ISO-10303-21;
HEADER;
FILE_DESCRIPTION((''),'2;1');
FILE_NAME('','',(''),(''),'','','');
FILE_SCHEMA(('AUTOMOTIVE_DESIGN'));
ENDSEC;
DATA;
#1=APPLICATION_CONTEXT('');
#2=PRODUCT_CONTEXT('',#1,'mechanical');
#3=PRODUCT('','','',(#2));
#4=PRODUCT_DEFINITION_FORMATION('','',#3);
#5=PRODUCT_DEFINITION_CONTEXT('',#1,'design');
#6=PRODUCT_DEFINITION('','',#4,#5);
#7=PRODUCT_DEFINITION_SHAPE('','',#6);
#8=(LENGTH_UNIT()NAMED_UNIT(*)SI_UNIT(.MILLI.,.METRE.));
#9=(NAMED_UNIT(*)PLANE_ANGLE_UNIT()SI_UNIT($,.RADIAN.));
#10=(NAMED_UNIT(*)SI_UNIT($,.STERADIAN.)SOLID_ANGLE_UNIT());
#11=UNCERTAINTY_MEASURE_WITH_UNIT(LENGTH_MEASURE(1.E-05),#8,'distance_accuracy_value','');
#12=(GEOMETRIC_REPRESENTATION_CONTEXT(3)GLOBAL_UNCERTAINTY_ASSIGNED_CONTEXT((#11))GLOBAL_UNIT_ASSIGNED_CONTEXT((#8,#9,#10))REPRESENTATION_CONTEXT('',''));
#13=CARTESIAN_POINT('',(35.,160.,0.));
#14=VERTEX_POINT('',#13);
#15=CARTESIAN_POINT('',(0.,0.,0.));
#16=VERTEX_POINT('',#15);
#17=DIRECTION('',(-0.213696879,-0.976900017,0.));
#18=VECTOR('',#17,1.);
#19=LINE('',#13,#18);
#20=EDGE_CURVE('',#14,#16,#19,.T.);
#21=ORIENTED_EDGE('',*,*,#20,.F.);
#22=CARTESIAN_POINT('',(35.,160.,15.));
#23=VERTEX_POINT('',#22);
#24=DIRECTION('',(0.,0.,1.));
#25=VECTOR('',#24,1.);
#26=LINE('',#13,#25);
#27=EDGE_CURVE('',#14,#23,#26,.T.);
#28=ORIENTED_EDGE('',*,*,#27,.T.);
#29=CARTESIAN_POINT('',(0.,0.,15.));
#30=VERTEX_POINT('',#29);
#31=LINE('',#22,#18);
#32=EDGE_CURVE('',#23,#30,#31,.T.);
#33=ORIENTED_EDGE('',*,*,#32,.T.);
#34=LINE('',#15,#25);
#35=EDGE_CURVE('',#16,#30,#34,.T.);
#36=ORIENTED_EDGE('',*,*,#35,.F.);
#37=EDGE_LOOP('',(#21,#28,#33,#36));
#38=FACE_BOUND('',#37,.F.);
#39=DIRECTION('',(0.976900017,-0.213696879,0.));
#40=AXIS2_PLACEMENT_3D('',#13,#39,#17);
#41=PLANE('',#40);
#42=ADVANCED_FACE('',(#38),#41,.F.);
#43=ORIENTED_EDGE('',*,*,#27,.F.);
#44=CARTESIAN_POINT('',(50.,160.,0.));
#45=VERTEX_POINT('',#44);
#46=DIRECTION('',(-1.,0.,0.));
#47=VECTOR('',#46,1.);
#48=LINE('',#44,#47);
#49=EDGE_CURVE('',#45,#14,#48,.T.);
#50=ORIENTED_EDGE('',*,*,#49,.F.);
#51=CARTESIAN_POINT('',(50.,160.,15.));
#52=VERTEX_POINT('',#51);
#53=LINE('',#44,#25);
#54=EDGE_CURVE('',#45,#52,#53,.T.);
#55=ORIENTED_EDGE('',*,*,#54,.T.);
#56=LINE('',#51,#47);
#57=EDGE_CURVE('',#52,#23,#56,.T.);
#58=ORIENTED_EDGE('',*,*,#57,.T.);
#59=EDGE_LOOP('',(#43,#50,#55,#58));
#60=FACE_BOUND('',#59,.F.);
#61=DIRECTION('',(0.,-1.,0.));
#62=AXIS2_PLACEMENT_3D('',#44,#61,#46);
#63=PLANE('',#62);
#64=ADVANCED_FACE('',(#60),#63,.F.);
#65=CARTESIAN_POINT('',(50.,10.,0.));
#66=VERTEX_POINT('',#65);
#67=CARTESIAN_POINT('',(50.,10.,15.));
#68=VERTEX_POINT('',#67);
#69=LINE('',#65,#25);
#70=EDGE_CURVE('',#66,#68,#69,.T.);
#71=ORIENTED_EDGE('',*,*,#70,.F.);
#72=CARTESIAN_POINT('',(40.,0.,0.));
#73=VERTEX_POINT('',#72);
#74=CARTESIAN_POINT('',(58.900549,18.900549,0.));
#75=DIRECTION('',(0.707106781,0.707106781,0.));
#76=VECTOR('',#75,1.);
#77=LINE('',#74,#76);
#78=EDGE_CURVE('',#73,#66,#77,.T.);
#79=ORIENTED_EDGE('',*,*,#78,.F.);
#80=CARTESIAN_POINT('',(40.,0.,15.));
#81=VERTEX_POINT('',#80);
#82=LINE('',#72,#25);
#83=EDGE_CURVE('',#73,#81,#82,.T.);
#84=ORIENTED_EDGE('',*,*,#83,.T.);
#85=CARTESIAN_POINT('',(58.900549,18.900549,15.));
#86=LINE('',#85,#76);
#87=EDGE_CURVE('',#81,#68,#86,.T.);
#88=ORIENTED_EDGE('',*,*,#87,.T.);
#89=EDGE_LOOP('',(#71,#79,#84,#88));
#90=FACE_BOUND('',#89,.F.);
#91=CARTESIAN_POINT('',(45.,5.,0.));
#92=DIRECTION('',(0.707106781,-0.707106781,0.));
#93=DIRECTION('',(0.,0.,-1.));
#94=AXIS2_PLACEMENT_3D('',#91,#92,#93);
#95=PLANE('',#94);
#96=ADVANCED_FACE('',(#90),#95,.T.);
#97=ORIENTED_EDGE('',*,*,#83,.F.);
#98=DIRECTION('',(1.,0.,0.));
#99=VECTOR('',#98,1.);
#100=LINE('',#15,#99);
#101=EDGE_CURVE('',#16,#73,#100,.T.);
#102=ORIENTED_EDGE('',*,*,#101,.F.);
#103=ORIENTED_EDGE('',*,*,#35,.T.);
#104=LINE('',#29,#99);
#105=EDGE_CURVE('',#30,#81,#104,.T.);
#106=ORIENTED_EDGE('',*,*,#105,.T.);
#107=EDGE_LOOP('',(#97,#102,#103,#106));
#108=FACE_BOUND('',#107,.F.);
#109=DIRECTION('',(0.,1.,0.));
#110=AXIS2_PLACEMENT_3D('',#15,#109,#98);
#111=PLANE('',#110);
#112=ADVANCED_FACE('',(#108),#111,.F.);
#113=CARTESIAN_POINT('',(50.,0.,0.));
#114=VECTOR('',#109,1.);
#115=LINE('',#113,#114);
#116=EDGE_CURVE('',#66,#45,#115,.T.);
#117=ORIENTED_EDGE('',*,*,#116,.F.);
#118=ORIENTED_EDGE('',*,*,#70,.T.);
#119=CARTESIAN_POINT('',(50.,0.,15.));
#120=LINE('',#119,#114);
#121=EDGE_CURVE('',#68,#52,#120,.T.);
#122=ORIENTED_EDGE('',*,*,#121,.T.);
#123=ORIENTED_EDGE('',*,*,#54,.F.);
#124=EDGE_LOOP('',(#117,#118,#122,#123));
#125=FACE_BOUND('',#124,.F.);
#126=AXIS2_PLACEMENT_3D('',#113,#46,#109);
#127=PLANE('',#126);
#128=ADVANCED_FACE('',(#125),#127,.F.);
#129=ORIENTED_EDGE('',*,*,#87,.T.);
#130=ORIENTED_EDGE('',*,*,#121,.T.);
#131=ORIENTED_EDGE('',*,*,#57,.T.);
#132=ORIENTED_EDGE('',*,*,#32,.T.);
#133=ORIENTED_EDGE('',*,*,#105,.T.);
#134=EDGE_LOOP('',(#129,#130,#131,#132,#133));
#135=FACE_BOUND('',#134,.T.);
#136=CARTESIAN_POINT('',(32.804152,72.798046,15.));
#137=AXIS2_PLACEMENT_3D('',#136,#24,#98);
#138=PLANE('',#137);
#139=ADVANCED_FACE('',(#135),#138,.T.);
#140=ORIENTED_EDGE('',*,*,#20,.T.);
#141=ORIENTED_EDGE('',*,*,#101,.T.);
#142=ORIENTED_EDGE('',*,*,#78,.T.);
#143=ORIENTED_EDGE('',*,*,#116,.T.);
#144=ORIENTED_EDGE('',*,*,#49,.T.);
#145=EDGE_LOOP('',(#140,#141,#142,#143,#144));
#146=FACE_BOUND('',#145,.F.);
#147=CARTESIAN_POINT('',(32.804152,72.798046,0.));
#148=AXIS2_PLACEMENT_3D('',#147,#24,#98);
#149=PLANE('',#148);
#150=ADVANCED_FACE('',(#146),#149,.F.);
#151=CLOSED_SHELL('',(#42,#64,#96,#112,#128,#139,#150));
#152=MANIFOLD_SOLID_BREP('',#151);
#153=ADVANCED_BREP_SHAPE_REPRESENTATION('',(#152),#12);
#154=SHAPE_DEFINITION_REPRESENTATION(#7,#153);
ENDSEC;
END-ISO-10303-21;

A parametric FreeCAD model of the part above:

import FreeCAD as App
import Part
import Sketcher

V = App.Vector


def edges_at(feature, points):
    """Names of the edges that pass closest to the given points."""
    edges = feature.Shape.Edges
    near = lambda p: min(range(len(edges)), key=lambda i: edges[i].distToShape(Part.Vertex(*p))[0])
    return sorted({f"Edge{near(p) + 1}" for p in points})

doc = App.newDocument("Part")
body = doc.addObject("PartDesign::Body", "Body")

# Sketch on XY plane
sketch1 = body.newObject("Sketcher::SketchObject", "Sketch")
sketch1.AttachmentSupport = (doc.getObject("XY_Plane"), [""])
sketch1.MapMode = "FlatFace"
sketch1.addGeometry(Part.LineSegment(V(35, 160, 0), V(0, 0, 0)), False)
sketch1.addGeometry(Part.LineSegment(V(0, 0, 0), V(50, 0, 0)), False)
sketch1.addGeometry(Part.LineSegment(V(50, 0, 0), V(50, 160, 0)), False)
sketch1.addGeometry(Part.LineSegment(V(50, 160, 0), V(35, 160, 0)), False)
sketch1.addConstraint(Sketcher.Constraint("Coincident", 0, 2, 1, 1))
sketch1.addConstraint(Sketcher.Constraint("Coincident", 1, 2, 2, 1))
sketch1.addConstraint(Sketcher.Constraint("Coincident", 2, 2, 3, 1))
sketch1.addConstraint(Sketcher.Constraint("Coincident", 3, 2, 0, 1))
sketch1.addConstraint(Sketcher.Constraint("Horizontal", 1))
sketch1.addConstraint(Sketcher.Constraint("Vertical", 2))
sketch1.addConstraint(Sketcher.Constraint("Horizontal", 3))
sketch1.addConstraint(Sketcher.Constraint("Coincident", 0, 2, -1, 1))
sketch1.addConstraint(Sketcher.Constraint("DistanceX", 1, 1, 1, 2, 50.0))
sketch1.addConstraint(Sketcher.Constraint("DistanceX", 3, 2, 3, 1, 15.0))
sketch1.addConstraint(Sketcher.Constraint("DistanceY", 2, 1, 2, 2, 160.0))
pad1 = body.newObject("PartDesign::Pad", "Pad")
pad1.Profile = sketch1
pad1.Length = 15
doc.recompute()

chamfer = body.newObject("PartDesign::Chamfer", "Chamfer")
chamfer.Base = (pad1, edges_at(pad1, [(50, 0, 7.5)]))
chamfer.ChamferType = "Two distances"
chamfer.Size = 10
chamfer.Size2 = 10

doc.recompute()
